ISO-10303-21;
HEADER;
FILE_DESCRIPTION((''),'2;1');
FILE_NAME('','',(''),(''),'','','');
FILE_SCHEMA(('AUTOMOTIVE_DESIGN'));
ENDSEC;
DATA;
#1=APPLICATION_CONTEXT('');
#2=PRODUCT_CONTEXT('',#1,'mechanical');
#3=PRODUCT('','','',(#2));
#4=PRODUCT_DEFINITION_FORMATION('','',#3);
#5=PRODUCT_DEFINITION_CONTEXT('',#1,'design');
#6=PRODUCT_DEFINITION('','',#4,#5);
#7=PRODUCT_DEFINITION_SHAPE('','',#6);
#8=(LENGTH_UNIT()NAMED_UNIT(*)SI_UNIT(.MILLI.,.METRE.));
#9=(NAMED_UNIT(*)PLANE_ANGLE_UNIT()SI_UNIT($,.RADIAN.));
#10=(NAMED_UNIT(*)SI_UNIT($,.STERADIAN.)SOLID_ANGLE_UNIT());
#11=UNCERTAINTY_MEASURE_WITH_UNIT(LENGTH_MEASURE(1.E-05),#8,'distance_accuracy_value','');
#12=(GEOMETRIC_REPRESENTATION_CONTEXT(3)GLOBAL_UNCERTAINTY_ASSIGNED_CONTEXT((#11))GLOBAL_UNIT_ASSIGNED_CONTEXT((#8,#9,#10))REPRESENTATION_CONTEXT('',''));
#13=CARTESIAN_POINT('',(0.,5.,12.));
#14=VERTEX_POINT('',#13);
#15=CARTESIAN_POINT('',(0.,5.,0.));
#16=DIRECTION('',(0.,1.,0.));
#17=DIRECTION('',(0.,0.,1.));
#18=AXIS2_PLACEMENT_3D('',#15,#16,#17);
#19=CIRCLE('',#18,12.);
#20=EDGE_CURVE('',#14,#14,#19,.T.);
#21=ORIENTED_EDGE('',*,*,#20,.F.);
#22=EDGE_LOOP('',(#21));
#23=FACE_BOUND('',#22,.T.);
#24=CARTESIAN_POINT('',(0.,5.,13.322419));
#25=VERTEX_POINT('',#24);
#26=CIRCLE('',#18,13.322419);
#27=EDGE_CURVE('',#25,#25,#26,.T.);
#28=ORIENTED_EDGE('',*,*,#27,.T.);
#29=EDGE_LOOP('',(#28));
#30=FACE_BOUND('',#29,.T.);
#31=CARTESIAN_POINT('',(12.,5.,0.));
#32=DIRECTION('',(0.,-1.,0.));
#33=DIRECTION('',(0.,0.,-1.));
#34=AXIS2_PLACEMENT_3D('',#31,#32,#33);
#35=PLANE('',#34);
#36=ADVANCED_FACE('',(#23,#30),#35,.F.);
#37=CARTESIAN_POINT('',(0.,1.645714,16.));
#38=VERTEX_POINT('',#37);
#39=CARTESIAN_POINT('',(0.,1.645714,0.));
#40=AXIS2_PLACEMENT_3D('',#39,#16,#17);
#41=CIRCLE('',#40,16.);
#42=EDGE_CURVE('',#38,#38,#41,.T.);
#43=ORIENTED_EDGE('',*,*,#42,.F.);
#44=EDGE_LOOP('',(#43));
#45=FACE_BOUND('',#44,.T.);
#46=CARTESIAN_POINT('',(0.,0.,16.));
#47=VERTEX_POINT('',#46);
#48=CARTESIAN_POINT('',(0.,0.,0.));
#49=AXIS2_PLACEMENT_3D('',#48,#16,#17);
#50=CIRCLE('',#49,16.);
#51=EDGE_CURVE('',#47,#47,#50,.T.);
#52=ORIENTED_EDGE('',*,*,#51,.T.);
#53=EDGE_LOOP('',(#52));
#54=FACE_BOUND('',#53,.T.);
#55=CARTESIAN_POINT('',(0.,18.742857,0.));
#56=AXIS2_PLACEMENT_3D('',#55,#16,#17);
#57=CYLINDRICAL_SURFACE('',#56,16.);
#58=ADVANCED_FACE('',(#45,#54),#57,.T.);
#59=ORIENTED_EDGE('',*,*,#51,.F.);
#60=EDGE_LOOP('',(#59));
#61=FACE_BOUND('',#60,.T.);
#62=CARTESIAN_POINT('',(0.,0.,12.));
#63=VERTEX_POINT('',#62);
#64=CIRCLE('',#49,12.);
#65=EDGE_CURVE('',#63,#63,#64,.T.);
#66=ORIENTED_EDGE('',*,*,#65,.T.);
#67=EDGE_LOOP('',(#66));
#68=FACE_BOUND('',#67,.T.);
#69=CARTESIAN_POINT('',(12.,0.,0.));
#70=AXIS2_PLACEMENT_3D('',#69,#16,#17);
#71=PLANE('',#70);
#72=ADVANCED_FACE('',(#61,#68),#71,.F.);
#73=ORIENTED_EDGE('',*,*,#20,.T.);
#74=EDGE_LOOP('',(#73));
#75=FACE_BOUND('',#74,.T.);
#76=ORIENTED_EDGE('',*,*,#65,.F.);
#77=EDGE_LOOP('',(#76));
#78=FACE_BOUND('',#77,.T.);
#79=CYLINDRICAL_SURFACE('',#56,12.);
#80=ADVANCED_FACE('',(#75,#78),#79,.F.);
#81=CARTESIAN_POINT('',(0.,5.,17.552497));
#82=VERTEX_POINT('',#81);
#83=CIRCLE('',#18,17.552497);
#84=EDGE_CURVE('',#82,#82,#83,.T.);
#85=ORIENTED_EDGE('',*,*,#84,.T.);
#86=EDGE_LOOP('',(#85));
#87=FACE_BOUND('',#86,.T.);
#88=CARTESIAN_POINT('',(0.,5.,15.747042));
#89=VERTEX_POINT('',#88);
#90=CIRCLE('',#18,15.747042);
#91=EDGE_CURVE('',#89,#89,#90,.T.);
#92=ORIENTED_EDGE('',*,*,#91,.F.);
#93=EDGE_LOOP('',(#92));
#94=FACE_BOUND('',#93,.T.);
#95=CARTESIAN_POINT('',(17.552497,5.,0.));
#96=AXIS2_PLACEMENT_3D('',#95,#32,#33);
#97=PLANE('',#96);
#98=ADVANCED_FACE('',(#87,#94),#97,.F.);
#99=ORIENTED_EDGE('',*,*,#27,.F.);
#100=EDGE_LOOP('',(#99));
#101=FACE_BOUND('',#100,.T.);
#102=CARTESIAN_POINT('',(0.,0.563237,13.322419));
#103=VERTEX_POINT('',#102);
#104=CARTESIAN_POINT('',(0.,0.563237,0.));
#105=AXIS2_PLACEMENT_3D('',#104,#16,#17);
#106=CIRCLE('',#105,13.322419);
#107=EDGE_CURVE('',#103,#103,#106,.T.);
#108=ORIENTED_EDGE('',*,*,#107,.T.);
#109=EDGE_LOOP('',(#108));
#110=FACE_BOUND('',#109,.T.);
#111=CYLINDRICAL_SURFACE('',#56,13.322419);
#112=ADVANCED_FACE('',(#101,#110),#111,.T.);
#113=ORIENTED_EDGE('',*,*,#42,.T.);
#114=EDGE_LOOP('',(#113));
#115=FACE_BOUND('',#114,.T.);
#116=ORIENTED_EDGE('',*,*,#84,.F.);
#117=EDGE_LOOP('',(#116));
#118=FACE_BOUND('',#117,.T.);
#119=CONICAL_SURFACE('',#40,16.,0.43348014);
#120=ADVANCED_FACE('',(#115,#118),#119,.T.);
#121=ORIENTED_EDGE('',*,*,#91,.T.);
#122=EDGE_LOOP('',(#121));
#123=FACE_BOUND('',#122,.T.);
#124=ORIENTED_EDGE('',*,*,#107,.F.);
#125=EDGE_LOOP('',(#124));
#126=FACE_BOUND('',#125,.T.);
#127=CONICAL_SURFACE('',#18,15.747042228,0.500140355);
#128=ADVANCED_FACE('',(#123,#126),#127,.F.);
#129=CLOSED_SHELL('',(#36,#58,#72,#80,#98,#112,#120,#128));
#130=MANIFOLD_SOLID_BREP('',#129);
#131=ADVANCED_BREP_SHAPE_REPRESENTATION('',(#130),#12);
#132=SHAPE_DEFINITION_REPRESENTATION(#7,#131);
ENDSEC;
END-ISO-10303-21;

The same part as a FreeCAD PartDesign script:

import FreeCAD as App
import Part
import Sketcher

V = App.Vector
Q = App.Units.Quantity


def add_polygon(sketch, points):
    """Adds a closed chain of lines whose ends are joined by coincident constraints."""
    first, n = sketch.GeometryCount, len(points)
    for a, b in zip(points, points[1:] + points[:1]):
        sketch.addGeometry(Part.LineSegment(App.Vector(*a, 0), App.Vector(*b, 0)), False)
    for i in range(n):
        sketch.addConstraint(Sketcher.Constraint("Coincident", first + i, 2, first + (i + 1) % n, 1))

doc = App.newDocument("Part")
body = doc.addObject("PartDesign::Body", "Body")

# Sketch on XY plane
sketch1 = body.newObject("Sketcher::SketchObject", "Sketch")
sketch1.AttachmentSupport = (doc.getObject("XY_Plane"), [""])
sketch1.MapMode = "FlatFace"
add_polygon(sketch1, [(12, 0), (16, 0), (16, 1.6), (17.6, 5), (15.7, 5), (13.3, 0.6), (13.3, 5), (12, 5)])  # lines 0-7
sketch1.addConstraint([
    Sketcher.Constraint("Horizontal", 0),
    Sketcher.Constraint("Vertical", 1),
    Sketcher.Constraint("Horizontal", 3),
    Sketcher.Constraint("Vertical", 5),
    Sketcher.Constraint("Horizontal", 6),
    Sketcher.Constraint("Vertical", 7),
    Sketcher.Constraint("PointOnObject", 0, 2, -1),
    Sketcher.Constraint("Horizontal", 3, 2, 5, 2),
    Sketcher.Constraint("DistanceX", 0, 1, 0, 2, Q("4 mm")),
    Sketcher.Constraint("DistanceY", 7, 2, 7, 1, Q("5 mm")),
    Sketcher.Constraint("DistanceX", -1, 1, 0, 2, Q("16 mm")),
    Sketcher.Constraint("DistanceX", 6, 2, 6, 1, Q("1.322419 mm")),
    Sketcher.Constraint("Distance", 4, Q("5.056052 mm")),
    Sketcher.Constraint("DistanceX", 3, 2, 3, 1, Q("1.805455 mm")),
    Sketcher.Constraint("DistanceY", 1, 1, 1, 2, Q("1.645714 mm")),
    Sketcher.Constraint("DistanceY", 5, 1, 5, 2, Q("4.436763 mm")),
])
revolution = body.newObject("PartDesign::Revolution", "Revolution")
revolution.Profile = sketch1
revolution.ReferenceAxis = (sketch1, ["V_Axis"])
revolution.Angle = 360

doc.recompute()
